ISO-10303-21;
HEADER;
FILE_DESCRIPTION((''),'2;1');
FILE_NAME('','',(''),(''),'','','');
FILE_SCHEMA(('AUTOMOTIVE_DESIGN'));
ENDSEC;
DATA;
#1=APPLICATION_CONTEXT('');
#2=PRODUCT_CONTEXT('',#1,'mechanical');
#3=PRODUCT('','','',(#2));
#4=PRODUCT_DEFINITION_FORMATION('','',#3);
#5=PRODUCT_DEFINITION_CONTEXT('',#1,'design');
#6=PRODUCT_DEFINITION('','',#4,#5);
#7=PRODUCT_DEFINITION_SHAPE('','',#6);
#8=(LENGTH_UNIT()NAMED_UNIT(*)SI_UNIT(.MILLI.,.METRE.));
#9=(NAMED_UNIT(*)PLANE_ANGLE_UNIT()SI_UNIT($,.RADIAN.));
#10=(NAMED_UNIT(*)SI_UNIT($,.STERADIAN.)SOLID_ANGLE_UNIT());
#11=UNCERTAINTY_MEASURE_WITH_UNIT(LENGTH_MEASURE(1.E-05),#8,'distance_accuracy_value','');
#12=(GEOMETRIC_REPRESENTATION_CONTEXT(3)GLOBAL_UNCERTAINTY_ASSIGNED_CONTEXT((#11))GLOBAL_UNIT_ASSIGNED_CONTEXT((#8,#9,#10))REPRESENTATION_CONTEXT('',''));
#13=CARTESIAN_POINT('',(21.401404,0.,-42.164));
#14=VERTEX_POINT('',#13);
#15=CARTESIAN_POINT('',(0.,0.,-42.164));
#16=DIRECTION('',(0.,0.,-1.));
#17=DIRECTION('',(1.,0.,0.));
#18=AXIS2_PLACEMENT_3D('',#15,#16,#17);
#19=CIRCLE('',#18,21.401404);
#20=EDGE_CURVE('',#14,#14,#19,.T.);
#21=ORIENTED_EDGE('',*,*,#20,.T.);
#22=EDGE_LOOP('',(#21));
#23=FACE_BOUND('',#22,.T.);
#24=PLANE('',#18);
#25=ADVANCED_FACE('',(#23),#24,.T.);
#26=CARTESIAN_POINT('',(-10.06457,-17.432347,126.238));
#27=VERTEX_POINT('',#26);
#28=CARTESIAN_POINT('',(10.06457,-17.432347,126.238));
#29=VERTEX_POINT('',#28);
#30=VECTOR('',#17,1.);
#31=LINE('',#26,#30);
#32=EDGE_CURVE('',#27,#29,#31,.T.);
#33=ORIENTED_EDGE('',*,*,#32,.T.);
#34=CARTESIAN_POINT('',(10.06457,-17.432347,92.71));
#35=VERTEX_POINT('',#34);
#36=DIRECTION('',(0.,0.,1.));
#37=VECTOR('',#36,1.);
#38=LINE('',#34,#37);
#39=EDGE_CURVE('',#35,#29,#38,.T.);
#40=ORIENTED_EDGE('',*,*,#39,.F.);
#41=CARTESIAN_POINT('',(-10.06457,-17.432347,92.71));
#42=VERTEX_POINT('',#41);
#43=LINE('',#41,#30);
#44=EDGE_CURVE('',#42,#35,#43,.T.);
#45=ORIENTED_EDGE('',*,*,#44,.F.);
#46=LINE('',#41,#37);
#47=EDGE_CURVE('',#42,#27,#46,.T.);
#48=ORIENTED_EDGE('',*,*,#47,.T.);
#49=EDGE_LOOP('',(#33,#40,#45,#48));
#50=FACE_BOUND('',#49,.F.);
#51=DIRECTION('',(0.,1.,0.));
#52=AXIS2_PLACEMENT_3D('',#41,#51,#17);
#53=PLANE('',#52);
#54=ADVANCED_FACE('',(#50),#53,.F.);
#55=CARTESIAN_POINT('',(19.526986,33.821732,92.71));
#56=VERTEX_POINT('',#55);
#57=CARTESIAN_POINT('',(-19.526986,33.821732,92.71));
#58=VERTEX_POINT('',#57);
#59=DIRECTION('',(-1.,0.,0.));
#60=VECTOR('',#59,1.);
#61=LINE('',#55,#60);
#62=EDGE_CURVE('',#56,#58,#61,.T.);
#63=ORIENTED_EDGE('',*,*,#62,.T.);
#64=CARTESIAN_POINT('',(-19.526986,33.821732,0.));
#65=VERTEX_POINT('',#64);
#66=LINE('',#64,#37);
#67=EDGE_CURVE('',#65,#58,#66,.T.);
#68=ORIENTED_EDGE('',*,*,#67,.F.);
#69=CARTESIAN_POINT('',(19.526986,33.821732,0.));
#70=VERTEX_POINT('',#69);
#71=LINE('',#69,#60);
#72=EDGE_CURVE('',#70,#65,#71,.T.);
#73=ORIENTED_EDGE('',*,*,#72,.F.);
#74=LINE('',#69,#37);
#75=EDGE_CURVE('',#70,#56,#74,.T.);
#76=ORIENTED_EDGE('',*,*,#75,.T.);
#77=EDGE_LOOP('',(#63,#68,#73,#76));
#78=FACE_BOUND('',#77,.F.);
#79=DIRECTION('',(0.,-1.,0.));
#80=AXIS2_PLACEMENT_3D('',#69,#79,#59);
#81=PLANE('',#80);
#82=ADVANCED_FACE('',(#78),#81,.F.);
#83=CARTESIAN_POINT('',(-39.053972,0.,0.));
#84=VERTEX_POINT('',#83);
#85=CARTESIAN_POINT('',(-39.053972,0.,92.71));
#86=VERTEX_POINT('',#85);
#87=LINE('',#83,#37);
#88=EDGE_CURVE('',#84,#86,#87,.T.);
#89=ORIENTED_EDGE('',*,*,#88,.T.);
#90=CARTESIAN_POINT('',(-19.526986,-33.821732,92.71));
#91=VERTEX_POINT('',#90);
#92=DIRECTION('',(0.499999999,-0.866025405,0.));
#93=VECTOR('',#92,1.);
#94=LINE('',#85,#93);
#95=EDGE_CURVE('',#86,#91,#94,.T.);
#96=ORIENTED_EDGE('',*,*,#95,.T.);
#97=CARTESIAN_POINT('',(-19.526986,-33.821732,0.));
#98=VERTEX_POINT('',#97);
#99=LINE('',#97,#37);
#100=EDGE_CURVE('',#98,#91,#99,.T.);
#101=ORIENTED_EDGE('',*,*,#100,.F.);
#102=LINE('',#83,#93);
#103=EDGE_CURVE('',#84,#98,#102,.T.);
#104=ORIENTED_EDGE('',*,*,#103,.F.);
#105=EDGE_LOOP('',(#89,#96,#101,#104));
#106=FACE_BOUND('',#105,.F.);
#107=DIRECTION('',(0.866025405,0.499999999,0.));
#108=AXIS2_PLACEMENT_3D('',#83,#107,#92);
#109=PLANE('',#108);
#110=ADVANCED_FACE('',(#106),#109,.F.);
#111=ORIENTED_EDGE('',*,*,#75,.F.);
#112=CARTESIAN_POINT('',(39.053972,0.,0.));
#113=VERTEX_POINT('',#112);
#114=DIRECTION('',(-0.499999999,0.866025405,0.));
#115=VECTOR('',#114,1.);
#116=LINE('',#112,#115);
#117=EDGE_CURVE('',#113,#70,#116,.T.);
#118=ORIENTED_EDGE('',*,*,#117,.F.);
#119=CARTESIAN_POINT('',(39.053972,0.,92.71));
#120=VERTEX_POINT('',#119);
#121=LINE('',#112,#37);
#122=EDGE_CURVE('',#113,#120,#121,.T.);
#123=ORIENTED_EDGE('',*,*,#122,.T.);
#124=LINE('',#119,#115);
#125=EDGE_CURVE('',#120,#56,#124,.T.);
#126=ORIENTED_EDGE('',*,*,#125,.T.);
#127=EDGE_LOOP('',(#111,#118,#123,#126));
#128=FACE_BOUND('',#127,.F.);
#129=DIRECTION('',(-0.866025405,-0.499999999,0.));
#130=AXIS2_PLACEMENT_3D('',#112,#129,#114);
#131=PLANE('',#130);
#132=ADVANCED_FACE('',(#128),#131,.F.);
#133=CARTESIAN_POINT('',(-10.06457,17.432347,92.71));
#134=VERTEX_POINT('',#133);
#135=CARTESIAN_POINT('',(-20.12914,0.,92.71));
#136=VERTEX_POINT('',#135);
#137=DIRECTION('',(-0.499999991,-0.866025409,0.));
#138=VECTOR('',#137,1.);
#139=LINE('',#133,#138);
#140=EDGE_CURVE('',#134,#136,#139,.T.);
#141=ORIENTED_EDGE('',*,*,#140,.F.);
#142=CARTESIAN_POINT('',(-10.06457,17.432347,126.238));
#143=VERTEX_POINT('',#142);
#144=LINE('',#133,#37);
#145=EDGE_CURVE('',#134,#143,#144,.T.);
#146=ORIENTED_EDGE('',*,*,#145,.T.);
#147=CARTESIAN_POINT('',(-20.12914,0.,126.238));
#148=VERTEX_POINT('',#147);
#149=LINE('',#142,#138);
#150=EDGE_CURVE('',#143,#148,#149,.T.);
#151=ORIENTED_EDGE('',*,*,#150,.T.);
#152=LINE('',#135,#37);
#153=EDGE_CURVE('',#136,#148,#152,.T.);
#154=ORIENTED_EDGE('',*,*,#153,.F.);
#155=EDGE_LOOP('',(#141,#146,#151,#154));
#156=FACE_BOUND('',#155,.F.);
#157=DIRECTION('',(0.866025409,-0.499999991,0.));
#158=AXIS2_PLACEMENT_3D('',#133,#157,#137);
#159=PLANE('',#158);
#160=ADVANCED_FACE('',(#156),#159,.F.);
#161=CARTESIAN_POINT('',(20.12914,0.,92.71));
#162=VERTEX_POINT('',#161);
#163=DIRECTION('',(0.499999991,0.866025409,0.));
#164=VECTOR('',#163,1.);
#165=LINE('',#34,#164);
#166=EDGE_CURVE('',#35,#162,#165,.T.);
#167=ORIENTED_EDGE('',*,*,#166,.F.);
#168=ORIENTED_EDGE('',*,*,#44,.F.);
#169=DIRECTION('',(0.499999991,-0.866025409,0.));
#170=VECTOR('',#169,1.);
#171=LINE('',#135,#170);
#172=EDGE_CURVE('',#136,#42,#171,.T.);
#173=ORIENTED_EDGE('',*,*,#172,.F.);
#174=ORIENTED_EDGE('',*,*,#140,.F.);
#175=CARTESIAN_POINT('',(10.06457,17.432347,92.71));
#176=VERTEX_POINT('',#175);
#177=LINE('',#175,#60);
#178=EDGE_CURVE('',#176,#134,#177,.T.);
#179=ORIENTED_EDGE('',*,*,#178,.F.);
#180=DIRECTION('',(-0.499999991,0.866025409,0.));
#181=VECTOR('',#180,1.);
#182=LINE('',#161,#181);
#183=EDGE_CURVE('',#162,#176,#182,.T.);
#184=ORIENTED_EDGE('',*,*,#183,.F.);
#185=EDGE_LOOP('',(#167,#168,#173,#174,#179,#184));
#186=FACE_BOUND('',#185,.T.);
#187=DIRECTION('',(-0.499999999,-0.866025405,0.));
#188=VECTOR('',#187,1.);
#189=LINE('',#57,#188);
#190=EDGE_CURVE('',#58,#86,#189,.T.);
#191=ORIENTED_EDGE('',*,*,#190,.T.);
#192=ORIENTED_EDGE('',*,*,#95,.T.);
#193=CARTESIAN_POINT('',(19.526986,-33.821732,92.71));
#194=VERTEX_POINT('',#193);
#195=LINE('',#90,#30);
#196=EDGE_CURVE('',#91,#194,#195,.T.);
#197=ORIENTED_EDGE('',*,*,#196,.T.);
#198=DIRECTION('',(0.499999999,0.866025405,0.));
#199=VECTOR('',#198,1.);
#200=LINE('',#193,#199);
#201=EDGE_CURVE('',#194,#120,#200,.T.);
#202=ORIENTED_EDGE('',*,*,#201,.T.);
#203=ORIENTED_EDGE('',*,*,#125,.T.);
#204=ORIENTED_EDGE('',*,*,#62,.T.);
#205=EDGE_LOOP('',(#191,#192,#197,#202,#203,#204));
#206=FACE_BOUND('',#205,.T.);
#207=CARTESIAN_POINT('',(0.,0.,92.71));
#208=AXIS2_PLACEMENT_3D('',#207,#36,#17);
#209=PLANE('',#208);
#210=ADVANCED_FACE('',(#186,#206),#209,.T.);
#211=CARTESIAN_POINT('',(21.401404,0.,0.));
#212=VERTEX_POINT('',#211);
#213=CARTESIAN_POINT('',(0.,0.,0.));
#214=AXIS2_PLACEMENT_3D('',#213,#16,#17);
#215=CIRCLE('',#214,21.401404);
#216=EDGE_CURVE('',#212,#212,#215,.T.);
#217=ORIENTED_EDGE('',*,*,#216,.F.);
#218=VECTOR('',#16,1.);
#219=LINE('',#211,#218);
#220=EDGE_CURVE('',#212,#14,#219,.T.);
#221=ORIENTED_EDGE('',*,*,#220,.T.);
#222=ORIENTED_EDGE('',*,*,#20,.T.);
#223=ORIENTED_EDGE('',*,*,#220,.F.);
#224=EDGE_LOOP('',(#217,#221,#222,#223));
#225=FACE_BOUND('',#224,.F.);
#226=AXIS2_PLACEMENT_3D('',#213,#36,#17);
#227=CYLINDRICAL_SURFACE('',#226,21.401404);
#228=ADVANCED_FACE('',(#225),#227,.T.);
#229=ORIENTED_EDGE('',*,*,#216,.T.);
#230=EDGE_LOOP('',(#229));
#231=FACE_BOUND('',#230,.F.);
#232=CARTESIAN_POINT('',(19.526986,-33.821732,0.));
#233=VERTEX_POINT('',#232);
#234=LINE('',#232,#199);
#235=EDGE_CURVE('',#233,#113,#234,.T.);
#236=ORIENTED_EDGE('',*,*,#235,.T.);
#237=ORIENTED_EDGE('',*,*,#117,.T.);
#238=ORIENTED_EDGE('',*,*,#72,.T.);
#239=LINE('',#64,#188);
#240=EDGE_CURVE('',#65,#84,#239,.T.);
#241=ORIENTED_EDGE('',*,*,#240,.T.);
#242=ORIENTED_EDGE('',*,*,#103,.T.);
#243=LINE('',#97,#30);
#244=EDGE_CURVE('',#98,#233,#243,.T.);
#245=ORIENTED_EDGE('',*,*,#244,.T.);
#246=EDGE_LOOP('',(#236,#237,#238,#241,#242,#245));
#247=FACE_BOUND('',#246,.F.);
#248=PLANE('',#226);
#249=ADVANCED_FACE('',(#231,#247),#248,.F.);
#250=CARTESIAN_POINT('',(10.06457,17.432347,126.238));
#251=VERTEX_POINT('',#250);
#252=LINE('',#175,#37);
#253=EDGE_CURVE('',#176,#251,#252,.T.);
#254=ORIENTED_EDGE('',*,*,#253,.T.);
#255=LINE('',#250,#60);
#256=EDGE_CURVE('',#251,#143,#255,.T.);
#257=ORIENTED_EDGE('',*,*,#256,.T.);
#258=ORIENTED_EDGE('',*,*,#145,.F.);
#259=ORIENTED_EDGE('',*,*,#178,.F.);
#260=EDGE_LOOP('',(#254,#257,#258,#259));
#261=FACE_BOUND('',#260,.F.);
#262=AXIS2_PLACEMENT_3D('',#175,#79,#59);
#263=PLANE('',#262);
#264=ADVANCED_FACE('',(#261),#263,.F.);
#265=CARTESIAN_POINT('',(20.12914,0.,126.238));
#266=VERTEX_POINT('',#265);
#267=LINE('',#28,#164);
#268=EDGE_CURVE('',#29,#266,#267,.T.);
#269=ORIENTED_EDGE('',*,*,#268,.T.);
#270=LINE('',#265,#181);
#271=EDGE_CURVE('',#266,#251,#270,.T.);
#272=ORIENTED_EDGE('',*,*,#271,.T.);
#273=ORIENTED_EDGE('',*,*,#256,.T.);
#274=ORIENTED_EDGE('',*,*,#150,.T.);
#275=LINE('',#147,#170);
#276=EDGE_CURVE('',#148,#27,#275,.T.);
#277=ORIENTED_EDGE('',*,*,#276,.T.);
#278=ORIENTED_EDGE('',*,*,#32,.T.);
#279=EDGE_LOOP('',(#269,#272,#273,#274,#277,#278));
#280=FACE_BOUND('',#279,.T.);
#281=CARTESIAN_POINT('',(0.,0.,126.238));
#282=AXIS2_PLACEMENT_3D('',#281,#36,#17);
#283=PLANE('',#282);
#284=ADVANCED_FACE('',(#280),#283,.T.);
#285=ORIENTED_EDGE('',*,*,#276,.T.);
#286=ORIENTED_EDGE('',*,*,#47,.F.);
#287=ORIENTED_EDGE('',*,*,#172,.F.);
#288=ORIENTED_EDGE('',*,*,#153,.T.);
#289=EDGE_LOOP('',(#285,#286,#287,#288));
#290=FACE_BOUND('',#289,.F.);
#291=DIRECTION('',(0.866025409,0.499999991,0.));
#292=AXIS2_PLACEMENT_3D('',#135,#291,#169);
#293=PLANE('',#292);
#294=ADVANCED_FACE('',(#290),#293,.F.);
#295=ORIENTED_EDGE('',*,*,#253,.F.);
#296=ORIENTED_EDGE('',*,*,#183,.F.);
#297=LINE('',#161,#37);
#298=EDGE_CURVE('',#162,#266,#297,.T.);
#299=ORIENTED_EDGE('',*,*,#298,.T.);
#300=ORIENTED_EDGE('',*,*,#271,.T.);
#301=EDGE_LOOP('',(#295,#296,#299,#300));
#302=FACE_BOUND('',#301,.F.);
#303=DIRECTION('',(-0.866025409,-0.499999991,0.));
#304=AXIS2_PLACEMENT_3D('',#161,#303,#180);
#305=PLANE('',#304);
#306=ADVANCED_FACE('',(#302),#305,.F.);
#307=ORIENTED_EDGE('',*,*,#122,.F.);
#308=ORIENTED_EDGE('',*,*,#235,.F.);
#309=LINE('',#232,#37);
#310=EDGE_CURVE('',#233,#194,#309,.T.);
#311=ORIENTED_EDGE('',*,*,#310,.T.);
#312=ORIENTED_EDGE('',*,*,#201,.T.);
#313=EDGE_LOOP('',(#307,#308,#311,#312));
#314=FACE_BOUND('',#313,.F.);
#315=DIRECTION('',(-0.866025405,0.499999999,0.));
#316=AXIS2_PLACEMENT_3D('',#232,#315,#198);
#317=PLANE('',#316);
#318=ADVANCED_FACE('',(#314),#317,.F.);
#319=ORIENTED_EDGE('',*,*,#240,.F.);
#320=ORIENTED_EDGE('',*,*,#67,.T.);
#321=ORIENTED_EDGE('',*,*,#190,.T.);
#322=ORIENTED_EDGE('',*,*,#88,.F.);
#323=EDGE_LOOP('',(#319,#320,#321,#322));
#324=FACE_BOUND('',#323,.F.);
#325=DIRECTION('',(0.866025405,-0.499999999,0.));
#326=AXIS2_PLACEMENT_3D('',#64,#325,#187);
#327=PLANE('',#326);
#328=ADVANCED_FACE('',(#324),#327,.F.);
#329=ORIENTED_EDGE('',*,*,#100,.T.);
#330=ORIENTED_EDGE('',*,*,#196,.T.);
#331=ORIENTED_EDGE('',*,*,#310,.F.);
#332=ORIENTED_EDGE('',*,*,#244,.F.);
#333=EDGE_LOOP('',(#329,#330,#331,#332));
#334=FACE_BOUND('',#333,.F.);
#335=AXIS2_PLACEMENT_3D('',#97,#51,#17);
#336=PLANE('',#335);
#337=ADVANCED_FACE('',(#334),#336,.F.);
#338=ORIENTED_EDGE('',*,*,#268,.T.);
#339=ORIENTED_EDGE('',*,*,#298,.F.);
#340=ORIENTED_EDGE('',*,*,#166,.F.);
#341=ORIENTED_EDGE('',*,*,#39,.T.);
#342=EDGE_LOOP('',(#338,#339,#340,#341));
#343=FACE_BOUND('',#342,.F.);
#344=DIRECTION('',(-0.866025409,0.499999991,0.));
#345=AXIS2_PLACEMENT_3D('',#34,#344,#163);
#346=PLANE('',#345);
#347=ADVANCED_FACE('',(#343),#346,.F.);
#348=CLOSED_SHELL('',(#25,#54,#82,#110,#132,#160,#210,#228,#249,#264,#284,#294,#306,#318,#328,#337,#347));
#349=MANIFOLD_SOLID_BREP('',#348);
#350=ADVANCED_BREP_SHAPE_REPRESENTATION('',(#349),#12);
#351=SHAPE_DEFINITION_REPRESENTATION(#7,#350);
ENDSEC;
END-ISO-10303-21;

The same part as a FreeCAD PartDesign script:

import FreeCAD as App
import Part
import Sketcher
from FreeCAD import Vector
Q = App.Units.Quantity

doc = App.newDocument("Part")
params = doc.addObject("Spreadsheet::Sheet", "Params")
for row, (alias, value) in enumerate([
    ("pad1_length", "3.65 in"),
    ("pad2_length", "1.32 in"),
    ("pad3_length", "1.66 in"),
], start=1):
    params.set(f"A{row}", alias)
    params.set(f"B{row}", "=" + value)
    params.setAlias(f"B{row}", alias)

body = doc.addObject("PartDesign::Body", "Body")

sketch1 = body.newObject("Sketcher::SketchObject", "Sketch")
sketch1.AttachmentSupport = (doc.getObject("XY_Plane"), [""])
sketch1.MapMode = "FlatFace"
sketch1.addGeometry([
    Part.LineSegment(Vector(20, 34, 0), Vector(-20, 34, 0)),
    Part.LineSegment(Vector(-20, 34, 0), Vector(-39, 0, 0)),
    Part.LineSegment(Vector(-39, 0, 0), Vector(-20, -34, 0)),
    Part.LineSegment(Vector(-20, -34, 0), Vector(20, -34, 0)),
    Part.LineSegment(Vector(20, -34, 0), Vector(39, 0, 0)),
    Part.LineSegment(Vector(39, 0, 0), Vector(20, 34, 0)),
], False)
sketch1.addConstraint([
    Sketcher.Constraint("Coincident", 0, 2, 1, 1),
    Sketcher.Constraint("Coincident", 1, 2, 2, 1),
    Sketcher.Constraint("Coincident", 2, 2, 3, 1),
    Sketcher.Constraint("Coincident", 3, 2, 4, 1),
    Sketcher.Constraint("Coincident", 4, 2, 5, 1),
    Sketcher.Constraint("Coincident", 5, 2, 0, 1),
    Sketcher.Constraint("Horizontal", 0),
    Sketcher.Constraint("Horizontal", 3),
    Sketcher.Constraint("Symmetric", 0, 2, 3, 2, -1, 1),
    Sketcher.Constraint("Symmetric", 1, 2, 4, 2, -1, 1),
    Sketcher.Constraint("PointOnObject", 1, 2, -1),
    Sketcher.Constraint("Parallel", 2, 5),
    Sketcher.Constraint("Vertical", 0, 2, 2, 2),
    Sketcher.Constraint("Angle", 1, Q("-120 deg")),
    Sketcher.Constraint("DistanceX", 0, 2, 0, 1, 39.053972),
    Sketcher.Constraint("DistanceY", -1, 1, 0, 2, 33.821732),
])
pad1 = body.newObject("PartDesign::Pad", "Pad")
pad1.Profile = sketch1
pad1.setExpression("Length", "Params.pad1_length")

sketch2 = body.newObject("Sketcher::SketchObject", "Sketch001")
sketch2.AttachmentSupport = (doc.getObject("XY_Plane"), [""])
sketch2.MapMode = "FlatFace"
sketch2.AttachmentOffset = App.Placement(Vector(0, 0, 3.65 * 25.4), App.Rotation())
sketch2.addGeometry([
    Part.LineSegment(Vector(10, 17, 0), Vector(-10, 17, 0)),
    Part.LineSegment(Vector(-10, 17, 0), Vector(-20, 0, 0)),
    Part.LineSegment(Vector(-20, 0, 0), Vector(-10, -17, 0)),
    Part.LineSegment(Vector(-10, -17, 0), Vector(10, -17, 0)),
    Part.LineSegment(Vector(10, -17, 0), Vector(20, 0, 0)),
    Part.LineSegment(Vector(20, 0, 0), Vector(10, 17, 0)),
], False)
sketch2.addConstraint([
    Sketcher.Constraint("Coincident", 0, 2, 1, 1),
    Sketcher.Constraint("Coincident", 1, 2, 2, 1),
    Sketcher.Constraint("Coincident", 2, 2, 3, 1),
    Sketcher.Constraint("Coincident", 3, 2, 4, 1),
    Sketcher.Constraint("Coincident", 4, 2, 5, 1),
    Sketcher.Constraint("Coincident", 5, 2, 0, 1),
    Sketcher.Constraint("Horizontal", 0),
    Sketcher.Constraint("Horizontal", 3),
    Sketcher.Constraint("Symmetric", 0, 2, 3, 2, -1, 1),
    Sketcher.Constraint("Symmetric", 1, 2, 4, 2, -1, 1),
    Sketcher.Constraint("PointOnObject", 1, 2, -1),
    Sketcher.Constraint("Parallel", 2, 5),
    Sketcher.Constraint("Vertical", 0, 2, 2, 2),
    Sketcher.Constraint("Angle", 1, Q("-119.999999 deg")),
    Sketcher.Constraint("DistanceX", 0, 2, 0, 1, 20.12914),
    Sketcher.Constraint("Distance", 1, 20.12914),
])
pad2 = body.newObject("PartDesign::Pad", "Pad001")
pad2.Profile = sketch2
pad2.setExpression("Length", "Params.pad2_length")

sketch3 = body.newObject("Sketcher::SketchObject", "Sketch002")
sketch3.AttachmentSupport = (doc.getObject("XY_Plane"), [""])
sketch3.MapMode = "FlatFace"
sketch3.addGeometry(Part.Circle(Vector(0, 0, 0), Vector(0, 0, 1), 21), False)
sketch3.addConstraint([
    Sketcher.Constraint("Coincident", 0, 3, -1, 1),
    Sketcher.Constraint("Diameter", 0, 42.802808),
])
pad3 = body.newObject("PartDesign::Pad", "Pad002")
pad3.Profile = sketch3
pad3.setExpression("Length", "Params.pad3_length")
pad3.Reversed = True

doc.recompute()
